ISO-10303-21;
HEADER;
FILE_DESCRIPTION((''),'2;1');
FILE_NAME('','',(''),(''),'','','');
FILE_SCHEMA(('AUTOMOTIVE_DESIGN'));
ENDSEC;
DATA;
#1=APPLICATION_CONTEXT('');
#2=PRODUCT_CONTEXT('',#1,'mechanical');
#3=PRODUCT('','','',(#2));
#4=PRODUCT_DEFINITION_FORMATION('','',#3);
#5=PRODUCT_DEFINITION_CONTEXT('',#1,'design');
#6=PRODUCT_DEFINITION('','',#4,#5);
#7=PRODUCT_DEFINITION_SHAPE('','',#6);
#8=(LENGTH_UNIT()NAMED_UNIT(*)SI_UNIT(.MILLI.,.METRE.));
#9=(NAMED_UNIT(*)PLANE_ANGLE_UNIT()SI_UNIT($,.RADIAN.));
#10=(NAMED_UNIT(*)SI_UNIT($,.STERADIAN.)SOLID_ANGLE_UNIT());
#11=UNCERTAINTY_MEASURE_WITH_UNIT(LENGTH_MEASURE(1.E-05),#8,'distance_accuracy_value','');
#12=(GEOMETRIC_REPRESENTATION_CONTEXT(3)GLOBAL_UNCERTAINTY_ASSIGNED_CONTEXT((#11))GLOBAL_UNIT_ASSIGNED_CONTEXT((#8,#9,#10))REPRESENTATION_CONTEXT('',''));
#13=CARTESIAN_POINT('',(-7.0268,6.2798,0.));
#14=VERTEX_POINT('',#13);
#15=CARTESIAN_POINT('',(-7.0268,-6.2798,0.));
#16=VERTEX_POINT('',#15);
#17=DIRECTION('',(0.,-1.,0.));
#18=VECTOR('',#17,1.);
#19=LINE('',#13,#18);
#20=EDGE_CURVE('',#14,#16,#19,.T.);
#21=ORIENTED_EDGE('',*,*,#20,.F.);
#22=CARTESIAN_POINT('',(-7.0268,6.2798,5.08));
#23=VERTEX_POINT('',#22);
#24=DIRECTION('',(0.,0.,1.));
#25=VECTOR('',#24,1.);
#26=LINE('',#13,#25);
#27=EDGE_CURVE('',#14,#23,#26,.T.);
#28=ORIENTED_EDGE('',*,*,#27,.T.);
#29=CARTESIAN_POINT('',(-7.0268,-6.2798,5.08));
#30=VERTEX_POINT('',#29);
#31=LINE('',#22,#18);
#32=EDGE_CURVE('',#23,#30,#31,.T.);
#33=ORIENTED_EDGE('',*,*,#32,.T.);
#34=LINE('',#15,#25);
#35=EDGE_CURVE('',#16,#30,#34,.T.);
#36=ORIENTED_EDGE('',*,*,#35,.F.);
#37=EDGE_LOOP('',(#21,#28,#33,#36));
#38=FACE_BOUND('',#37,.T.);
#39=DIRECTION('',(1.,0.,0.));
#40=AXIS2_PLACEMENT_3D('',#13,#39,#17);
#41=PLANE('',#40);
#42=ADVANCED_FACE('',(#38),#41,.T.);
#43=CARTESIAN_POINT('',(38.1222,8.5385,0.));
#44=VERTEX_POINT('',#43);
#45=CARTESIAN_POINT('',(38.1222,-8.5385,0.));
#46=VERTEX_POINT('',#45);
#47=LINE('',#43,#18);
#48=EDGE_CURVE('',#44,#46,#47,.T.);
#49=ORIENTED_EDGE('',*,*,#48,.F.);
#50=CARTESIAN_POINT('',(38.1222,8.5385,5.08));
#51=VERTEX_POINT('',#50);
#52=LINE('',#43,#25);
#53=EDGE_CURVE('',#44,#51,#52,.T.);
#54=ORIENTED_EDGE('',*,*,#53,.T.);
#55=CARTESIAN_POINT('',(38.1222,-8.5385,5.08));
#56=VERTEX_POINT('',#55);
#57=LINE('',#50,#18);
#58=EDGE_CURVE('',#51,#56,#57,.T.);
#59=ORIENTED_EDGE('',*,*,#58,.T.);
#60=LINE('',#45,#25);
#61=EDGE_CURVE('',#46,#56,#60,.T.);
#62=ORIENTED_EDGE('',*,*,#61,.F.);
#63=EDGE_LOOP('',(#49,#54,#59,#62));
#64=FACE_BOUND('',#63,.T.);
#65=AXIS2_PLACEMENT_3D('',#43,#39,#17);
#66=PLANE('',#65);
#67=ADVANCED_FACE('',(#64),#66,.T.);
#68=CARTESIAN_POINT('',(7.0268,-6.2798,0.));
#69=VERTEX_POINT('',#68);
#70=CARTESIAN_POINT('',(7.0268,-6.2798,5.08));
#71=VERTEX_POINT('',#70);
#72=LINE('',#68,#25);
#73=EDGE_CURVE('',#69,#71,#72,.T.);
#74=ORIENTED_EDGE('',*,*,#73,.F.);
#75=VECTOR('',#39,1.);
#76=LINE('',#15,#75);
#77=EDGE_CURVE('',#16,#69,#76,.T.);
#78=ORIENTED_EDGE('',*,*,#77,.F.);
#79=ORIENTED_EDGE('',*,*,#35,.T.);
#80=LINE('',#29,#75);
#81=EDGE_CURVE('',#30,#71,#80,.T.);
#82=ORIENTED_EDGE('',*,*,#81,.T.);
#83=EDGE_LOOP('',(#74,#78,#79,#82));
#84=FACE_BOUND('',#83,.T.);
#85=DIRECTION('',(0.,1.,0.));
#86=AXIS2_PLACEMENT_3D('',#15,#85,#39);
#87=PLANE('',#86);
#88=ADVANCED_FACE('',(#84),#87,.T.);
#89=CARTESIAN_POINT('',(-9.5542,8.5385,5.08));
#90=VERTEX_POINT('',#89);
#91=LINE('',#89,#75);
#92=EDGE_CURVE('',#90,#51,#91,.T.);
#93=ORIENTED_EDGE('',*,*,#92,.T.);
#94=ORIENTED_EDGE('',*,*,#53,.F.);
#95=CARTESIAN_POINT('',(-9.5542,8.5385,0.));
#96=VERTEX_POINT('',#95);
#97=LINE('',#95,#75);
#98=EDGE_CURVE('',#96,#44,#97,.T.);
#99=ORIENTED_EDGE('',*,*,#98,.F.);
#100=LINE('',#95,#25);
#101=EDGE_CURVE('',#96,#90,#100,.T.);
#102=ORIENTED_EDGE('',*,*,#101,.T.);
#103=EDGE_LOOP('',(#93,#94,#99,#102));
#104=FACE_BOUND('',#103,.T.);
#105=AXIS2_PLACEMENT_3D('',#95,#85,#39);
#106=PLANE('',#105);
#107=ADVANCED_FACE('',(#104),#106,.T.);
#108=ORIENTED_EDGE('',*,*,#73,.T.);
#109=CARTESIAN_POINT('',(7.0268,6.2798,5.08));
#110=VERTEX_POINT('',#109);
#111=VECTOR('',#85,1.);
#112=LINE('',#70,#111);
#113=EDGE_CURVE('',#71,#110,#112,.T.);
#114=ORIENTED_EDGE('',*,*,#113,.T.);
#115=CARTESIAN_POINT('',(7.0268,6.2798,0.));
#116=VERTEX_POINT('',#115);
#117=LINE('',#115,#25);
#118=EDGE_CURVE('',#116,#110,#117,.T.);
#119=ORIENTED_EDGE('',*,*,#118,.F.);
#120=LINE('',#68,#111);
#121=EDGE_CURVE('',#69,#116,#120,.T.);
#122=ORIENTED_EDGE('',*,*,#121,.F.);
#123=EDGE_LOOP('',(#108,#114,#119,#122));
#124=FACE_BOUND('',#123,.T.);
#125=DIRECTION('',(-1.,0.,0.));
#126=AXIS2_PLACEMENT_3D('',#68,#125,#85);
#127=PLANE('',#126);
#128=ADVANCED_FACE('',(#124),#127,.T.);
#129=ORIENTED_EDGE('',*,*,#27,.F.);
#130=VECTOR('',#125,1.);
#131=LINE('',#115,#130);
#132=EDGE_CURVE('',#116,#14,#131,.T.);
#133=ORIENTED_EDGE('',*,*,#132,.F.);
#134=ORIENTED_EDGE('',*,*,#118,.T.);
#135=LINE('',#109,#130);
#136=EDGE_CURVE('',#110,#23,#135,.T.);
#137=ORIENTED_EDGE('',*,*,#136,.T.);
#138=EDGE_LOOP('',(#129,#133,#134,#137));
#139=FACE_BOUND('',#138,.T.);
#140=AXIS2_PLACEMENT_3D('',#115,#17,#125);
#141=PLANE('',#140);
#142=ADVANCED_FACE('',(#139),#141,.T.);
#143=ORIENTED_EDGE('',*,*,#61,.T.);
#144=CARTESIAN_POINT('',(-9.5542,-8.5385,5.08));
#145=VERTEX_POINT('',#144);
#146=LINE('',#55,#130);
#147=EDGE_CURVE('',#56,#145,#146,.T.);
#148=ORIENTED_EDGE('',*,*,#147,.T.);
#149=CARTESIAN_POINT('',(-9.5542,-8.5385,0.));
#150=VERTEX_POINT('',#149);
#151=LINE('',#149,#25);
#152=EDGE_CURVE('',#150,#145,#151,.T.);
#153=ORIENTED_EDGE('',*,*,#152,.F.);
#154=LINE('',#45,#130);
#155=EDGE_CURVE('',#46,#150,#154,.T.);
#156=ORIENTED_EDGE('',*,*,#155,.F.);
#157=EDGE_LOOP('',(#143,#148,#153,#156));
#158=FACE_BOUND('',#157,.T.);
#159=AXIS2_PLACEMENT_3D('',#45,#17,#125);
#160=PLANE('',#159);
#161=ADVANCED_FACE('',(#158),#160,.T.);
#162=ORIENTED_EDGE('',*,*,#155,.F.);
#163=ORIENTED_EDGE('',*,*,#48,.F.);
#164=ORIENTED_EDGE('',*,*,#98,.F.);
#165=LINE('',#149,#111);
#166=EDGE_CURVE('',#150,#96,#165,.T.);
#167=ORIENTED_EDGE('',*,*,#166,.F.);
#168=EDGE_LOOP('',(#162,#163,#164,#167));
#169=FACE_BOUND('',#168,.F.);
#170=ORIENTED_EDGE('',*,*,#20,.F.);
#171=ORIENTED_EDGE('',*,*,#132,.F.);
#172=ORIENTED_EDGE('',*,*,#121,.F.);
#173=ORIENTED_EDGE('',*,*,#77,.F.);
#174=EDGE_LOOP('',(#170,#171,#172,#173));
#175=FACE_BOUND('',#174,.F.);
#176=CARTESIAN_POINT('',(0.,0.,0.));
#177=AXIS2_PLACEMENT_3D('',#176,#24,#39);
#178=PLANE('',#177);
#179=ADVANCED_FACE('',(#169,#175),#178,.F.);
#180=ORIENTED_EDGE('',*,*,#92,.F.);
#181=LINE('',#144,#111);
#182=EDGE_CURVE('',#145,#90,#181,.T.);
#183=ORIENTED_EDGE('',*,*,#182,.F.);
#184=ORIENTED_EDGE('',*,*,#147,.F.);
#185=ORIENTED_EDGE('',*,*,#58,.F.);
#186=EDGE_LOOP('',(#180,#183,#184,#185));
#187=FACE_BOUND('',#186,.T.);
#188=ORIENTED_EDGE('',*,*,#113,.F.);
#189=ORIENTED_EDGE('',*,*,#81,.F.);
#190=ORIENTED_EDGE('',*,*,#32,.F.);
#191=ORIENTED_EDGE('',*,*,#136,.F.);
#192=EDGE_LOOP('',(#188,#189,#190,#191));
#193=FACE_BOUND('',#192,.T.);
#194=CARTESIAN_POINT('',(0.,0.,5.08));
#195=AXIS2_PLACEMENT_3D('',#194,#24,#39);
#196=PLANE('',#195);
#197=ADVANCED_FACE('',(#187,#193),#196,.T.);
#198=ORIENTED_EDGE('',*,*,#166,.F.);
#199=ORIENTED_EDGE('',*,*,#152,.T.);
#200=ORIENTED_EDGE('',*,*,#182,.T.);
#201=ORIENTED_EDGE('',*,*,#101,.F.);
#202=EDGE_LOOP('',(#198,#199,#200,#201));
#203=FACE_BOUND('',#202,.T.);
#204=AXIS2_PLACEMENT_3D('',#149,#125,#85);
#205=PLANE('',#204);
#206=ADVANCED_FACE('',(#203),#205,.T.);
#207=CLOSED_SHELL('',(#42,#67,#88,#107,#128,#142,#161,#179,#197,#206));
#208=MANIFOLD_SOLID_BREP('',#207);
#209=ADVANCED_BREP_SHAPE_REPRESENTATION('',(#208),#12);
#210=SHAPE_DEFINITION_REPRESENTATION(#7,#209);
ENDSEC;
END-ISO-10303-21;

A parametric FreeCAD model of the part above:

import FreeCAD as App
import Part
import Sketcher

V = App.Vector
Q = App.Units.Quantity

doc = App.newDocument("Part")
params = doc.addObject("Spreadsheet::Sheet", "Params")
for row, (alias, value) in enumerate([
    ("pad1_length", "0.2 in"),
], start=1):
    params.set(f"A{row}", alias)
    params.set(f"B{row}", "=" + value)
    params.setAlias(f"B{row}", alias)

body = doc.addObject("PartDesign::Body", "Body")

# Sketch on XY plane
sketch1 = body.newObject("Sketcher::SketchObject", "Sketch")
sketch1.AttachmentSupport = (doc.getObject("XY_Plane"), [""])
sketch1.MapMode = "FlatFace"
sketch1.addGeometry([
    Part.LineSegment(V(-10, 9, 0), V(-10, -9, 0)),  # 0
    Part.LineSegment(V(-10, -9, 0), V(38, -9, 0)),  # 1
    Part.LineSegment(V(38, -9, 0), V(38, 9, 0)),  # 2
    Part.LineSegment(V(38, 9, 0), V(-10, 9, 0)),  # 3
    Part.LineSegment(V(7, -6, 0), V(-7, -6, 0)),  # 4
    Part.LineSegment(V(-7, -6, 0), V(-7, 6, 0)),  # 5
    Part.LineSegment(V(-7, 6, 0), V(7, 6, 0)),  # 6
    Part.LineSegment(V(7, 6, 0), V(7, -6, 0)),  # 7
], False)
sketch1.addConstraint([
    Sketcher.Constraint("Coincident", 0, 2, 1, 1),
    Sketcher.Constraint("Coincident", 1, 2, 2, 1),
    Sketcher.Constraint("Coincident", 2, 2, 3, 1),
    Sketcher.Constraint("Coincident", 3, 2, 0, 1),
    Sketcher.Constraint("Coincident", 4, 2, 5, 1),
    Sketcher.Constraint("Coincident", 5, 2, 6, 1),
    Sketcher.Constraint("Coincident", 6, 2, 7, 1),
    Sketcher.Constraint("Coincident", 7, 2, 4, 1),
    Sketcher.Constraint("Vertical", 0),
    Sketcher.Constraint("Horizontal", 1),
    Sketcher.Constraint("Vertical", 2),
    Sketcher.Constraint("Horizontal", 3),
    Sketcher.Constraint("Horizontal", 4),
    Sketcher.Constraint("Vertical", 5),
    Sketcher.Constraint("Horizontal", 6),
    Sketcher.Constraint("Vertical", 7),
    Sketcher.Constraint("Symmetric", 4, 2, 6, 2, -1, 1),
    Sketcher.Constraint("DistanceX", 4, 2, 4, 1, Q("0.5533 in")),
    Sketcher.Constraint("DistanceX", 1, 1, 1, 2, 47.6764),
    Sketcher.Constraint("DistanceY", 0, 2, 0, 1, 17.077),
    Sketcher.Constraint("DistanceY", 5, 1, 5, 2, 12.5596),
    Sketcher.Constraint("DistanceX", 0, 2, 4, 2, Q("0.0995 in")),
    Sketcher.Constraint("DistanceY", 4, 2, 3, 2, Q("0.5834 in")),
])
pad1 = body.newObject("PartDesign::Pad", "Pad")
pad1.Profile = sketch1
pad1.setExpression("Length", "Params.pad1_length")

doc.recompute()
